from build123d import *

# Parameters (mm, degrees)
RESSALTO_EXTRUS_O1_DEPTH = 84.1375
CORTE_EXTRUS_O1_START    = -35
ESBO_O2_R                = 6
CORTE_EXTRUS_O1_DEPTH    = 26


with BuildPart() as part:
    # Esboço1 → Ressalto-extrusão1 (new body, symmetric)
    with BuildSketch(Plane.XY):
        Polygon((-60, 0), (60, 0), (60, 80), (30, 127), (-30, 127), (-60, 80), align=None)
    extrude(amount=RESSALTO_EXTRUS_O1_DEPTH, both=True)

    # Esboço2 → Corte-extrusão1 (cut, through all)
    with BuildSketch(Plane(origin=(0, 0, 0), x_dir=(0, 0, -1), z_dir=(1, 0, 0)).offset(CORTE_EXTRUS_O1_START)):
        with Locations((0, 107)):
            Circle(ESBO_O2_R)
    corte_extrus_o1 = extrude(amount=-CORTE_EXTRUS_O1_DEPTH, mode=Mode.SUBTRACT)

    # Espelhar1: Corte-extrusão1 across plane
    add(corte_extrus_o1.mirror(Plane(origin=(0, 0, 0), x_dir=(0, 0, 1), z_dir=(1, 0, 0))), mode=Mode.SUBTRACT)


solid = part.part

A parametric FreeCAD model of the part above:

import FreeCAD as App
import Part
import Sketcher

V = App.Vector


def add_polygon(sketch, points):
    """Adds a closed chain of lines whose ends are joined by coincident constraints."""
    first, n = sketch.GeometryCount, len(points)
    for a, b in zip(points, points[1:] + points[:1]):
        sketch.addGeometry(Part.LineSegment(App.Vector(*a, 0), App.Vector(*b, 0)), False)
    for i in range(n):
        sketch.addConstraint(Sketcher.Constraint("Coincident", first + i, 2, first + (i + 1) % n, 1))

doc = App.newDocument("Part")
body = doc.addObject("PartDesign::Body", "Body")

# Sketch on XY plane
sketch1 = doc.addObject("Sketcher::SketchObject", "Sketch")
body.addObject(sketch1)
sketch1.AttachmentSupport = (doc.XY_Plane, [""])
sketch1.MapMode = "FlatFace"
add_polygon(sketch1, [(-60, 0), (60, 0), (60, 80), (30, 127), (-30, 127), (-60, 80)])  # lines 0-5
sketch1.addConstraint([
    Sketcher.Constraint("Horizontal", 0),
    Sketcher.Constraint("Vertical", 1),
    Sketcher.Constraint("Horizontal", 3),
    Sketcher.Constraint("Vertical", 5),
    Sketcher.Constraint("Symmetric", 0, 2, 5, 2, -1, 1),
    Sketcher.Constraint("Horizontal", 1, 2, 4, 2),
    Sketcher.Constraint("Equal", 2, 4),
    Sketcher.Constraint("DistanceX", 0, 1, 0, 2, 120.0),
    Sketcher.Constraint("DistanceX", 3, 2, 3, 1, 60.0),
    Sketcher.Constraint("DistanceY", 1, 1, 1, 2, 80.0),
    Sketcher.Constraint("DistanceY", -1, 1, 2, 2, 127.0),
])
pad1 = doc.addObject("PartDesign::Pad", "Pad")
body.addObject(pad1)
pad1.Profile = sketch1
pad1.Length = 168.275
pad1.Midplane = True

# Sketch on YZ plane
sketch2 = doc.addObject("Sketcher::SketchObject", "Sketch001")
body.addObject(sketch2)
sketch2.AttachmentSupport = (doc.YZ_Plane, [""])
sketch2.MapMode = "FlatFace"
sketch2.AttachmentOffset = App.Placement(V(0, 0, -35), App.Rotation())
sketch2.addGeometry(Part.Circle(V(107, 0, 0), V(0, 0, 1), 6), False)
sketch2.addConstraint([
    Sketcher.Constraint("PointOnObject", 0, 3, -1),
    Sketcher.Constraint("Diameter", 0, 12.0),
    Sketcher.Constraint("DistanceX", -1, 1, 0, 3, 107.0),
])
pocket1 = doc.addObject("PartDesign::Pocket", "Pocket")
body.addObject(pocket1)
pocket1.Profile = sketch2
pocket1.Type = "ThroughAll"
doc.recompute()

mirrored = doc.addObject("PartDesign::Mirrored", "Mirrored")
body.addObject(mirrored)
mirrored.Originals = [pocket1]
mirrored.MirrorPlane = (doc.YZ_Plane, [""])
body.Tip = mirrored

doc.recompute()
